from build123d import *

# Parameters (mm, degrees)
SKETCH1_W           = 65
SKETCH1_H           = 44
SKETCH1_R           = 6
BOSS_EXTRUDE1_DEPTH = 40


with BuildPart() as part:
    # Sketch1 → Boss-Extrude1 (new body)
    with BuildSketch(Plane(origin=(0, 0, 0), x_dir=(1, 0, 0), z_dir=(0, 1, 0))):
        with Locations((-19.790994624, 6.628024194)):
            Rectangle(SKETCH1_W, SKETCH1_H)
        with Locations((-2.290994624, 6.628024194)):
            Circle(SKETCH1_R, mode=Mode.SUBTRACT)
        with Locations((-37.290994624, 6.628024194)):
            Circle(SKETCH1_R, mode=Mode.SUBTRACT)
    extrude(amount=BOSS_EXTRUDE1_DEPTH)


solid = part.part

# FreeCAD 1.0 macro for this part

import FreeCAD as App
import Part
import Sketcher

doc = App.newDocument("Part")
body = doc.addObject("PartDesign::Body", "Body")

# Sketch on XZ plane
sketch1 = body.newObject("Sketcher::SketchObject", "Sketch")
sketch1.AttachmentSupport = (doc.getObject("XZ_Plane"), [""])
sketch1.MapMode = "FlatFace"
sketch1.addGeometry(Part.LineSegment(App.Vector(-52, -29, 0), App.Vector(-52, 15, 0)), False)
sketch1.addGeometry(Part.LineSegment(App.Vector(-52, 15, 0), App.Vector(13, 15, 0)), False)
sketch1.addGeometry(Part.LineSegment(App.Vector(13, 15, 0), App.Vector(13, -29, 0)), False)
sketch1.addGeometry(Part.LineSegment(App.Vector(13, -29, 0), App.Vector(-52, -29, 0)), False)
sketch1.addGeometry(Part.Circle(App.Vector(-37, -7, 0), App.Vector(0, 0, 1), 6), False)
sketch1.addGeometry(Part.Circle(App.Vector(-2, -7, 0), App.Vector(0, 0, 1), 6), False)
sketch1.addConstraint(Sketcher.Constraint("Coincident", 0, 2, 1, 1))
sketch1.addConstraint(Sketcher.Constraint("Coincident", 1, 2, 2, 1))
sketch1.addConstraint(Sketcher.Constraint("Coincident", 2, 2, 3, 1))
sketch1.addConstraint(Sketcher.Constraint("Coincident", 3, 2, 0, 1))
sketch1.addConstraint(Sketcher.Constraint("Vertical", 0))
sketch1.addConstraint(Sketcher.Constraint("Horizontal", 1))
sketch1.addConstraint(Sketcher.Constraint("Vertical", 2))
sketch1.addConstraint(Sketcher.Constraint("Horizontal", 3))
sketch1.addConstraint(Sketcher.Constraint("Equal", 4, 5))
sketch1.addConstraint(Sketcher.Constraint("Horizontal", 4, 3, 5, 3))
sketch1.addConstraint(Sketcher.Constraint("Diameter", 4, 12.0))
sketch1.addConstraint(Sketcher.Constraint("DistanceX", 1, 1, 1, 2, 65.0))
sketch1.addConstraint(Sketcher.Constraint("DistanceY", 0, 1, 0, 2, 44.0))
sketch1.addConstraint(Sketcher.Constraint("DistanceX", 4, 3, 5, 3, 35.0))
sketch1.addConstraint(Sketcher.Constraint("DistanceX", 0, 2, 4, 3, 15.0))
sketch1.addConstraint(Sketcher.Constraint("DistanceY", 4, 3, 0, 2, 22.0))
sketch1.addConstraint(Sketcher.Constraint("DistanceX", 4, 3, -1, 1, 37.290995))
sketch1.addConstraint(Sketcher.Constraint("DistanceY", 4, 3, -1, 1, 6.628024))
pad1 = body.newObject("PartDesign::Pad", "Pad")
pad1.Profile = sketch1
pad1.Length = 40
pad1.Reversed = True

doc.recompute()
